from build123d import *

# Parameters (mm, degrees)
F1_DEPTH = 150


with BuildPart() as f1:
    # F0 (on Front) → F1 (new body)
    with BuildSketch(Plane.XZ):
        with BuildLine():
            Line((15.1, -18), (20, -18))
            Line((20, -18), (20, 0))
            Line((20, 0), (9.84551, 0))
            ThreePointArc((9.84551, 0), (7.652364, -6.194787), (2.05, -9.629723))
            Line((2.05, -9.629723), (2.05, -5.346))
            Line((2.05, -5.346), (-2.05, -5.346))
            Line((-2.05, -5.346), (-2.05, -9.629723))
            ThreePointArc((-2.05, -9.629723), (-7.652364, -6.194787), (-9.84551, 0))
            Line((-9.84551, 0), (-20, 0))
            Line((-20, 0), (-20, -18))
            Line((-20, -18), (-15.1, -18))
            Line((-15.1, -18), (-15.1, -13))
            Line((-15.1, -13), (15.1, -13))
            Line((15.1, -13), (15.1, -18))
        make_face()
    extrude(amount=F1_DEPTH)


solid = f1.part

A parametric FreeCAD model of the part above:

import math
import FreeCAD as App
import Part
import Sketcher
from FreeCAD import Vector
Q = App.Units.Quantity

doc = App.newDocument("Part")
body = doc.addObject("PartDesign::Body", "Body")

sketch1 = body.newObject("Sketcher::SketchObject", "Sketch")
sketch1.AttachmentSupport = (doc.getObject("XZ_Plane"), [""])
sketch1.MapMode = "FlatFace"
sketch1.addGeometry([
    Part.LineSegment(Vector(15.1, -18, 0), Vector(20, -18, 0)),
    Part.LineSegment(Vector(20, -18, 0), Vector(20, 0, 0)),
    Part.LineSegment(Vector(20, 0, 0), Vector(9.8, 0, 0)),
    Part.ArcOfCircle(Part.Circle(Vector(0, 0, 0), Vector(0, 0, 1), 9.8), math.radians(-78), math.radians(0)),
    Part.LineSegment(Vector(2, -9.6, 0), Vector(2, -5.3, 0)),
    Part.LineSegment(Vector(2, -5.3, 0), Vector(-2, -5.3, 0)),
    Part.LineSegment(Vector(-2, -5.3, 0), Vector(-2, -9.6, 0)),
    Part.ArcOfCircle(Part.Circle(Vector(0, 0, 0), Vector(0, 0, 1), 9.8), math.radians(-180), math.radians(-102)),
    Part.LineSegment(Vector(-9.8, 0, 0), Vector(-20, 0, 0)),
    Part.LineSegment(Vector(-20, 0, 0), Vector(-20, -18, 0)),
    Part.LineSegment(Vector(-20, -18, 0), Vector(-15.1, -18, 0)),
    Part.LineSegment(Vector(-15.1, -18, 0), Vector(-15.1, -13, 0)),
    Part.LineSegment(Vector(-15.1, -13, 0), Vector(15.1, -13, 0)),
    Part.LineSegment(Vector(15.1, -13, 0), Vector(15.1, -18, 0)),
], False)
sketch1.addConstraint([
    Sketcher.Constraint("Coincident", 0, 2, 1, 1),
    Sketcher.Constraint("Coincident", 1, 2, 2, 1),
    Sketcher.Constraint("Coincident", 2, 2, 3, 2),
    Sketcher.Constraint("Coincident", 3, 1, 4, 1),
    Sketcher.Constraint("Coincident", 4, 2, 5, 1),
    Sketcher.Constraint("Coincident", 5, 2, 6, 1),
    Sketcher.Constraint("Coincident", 6, 2, 7, 2),
    Sketcher.Constraint("Coincident", 7, 1, 8, 1),
    Sketcher.Constraint("Coincident", 8, 2, 9, 1),
    Sketcher.Constraint("Coincident", 9, 2, 10, 1),
    Sketcher.Constraint("Coincident", 10, 2, 11, 1),
    Sketcher.Constraint("Coincident", 11, 2, 12, 1),
    Sketcher.Constraint("Coincident", 12, 2, 13, 1),
    Sketcher.Constraint("Coincident", 13, 2, 0, 1),
    Sketcher.Constraint("Horizontal", 0),
    Sketcher.Constraint("Vertical", 1),
    Sketcher.Constraint("Horizontal", 2),
    Sketcher.Constraint("Vertical", 4),
    Sketcher.Constraint("Horizontal", 5),
    Sketcher.Constraint("Vertical", 6),
    Sketcher.Constraint("Horizontal", 8),
    Sketcher.Constraint("Vertical", 9),
    Sketcher.Constraint("Horizontal", 10),
    Sketcher.Constraint("Vertical", 11),
    Sketcher.Constraint("Horizontal", 12),
    Sketcher.Constraint("Vertical", 13),
    Sketcher.Constraint("Coincident", 3, 3, -1, 1),
    Sketcher.Constraint("Coincident", 7, 3, -1, 1),
    Sketcher.Constraint("Equal", 3, 7),
    Sketcher.Constraint("Symmetric", 1, 2, 8, 2, -1, 1),
    Sketcher.Constraint("Symmetric", 10, 2, 13, 2, -2),
    Sketcher.Constraint("PointOnObject", 1, 2, -1),
    Sketcher.Constraint("Horizontal", 3, 1, 6, 2),
    Sketcher.Constraint("DistanceY", 1, 1, 1, 2, Q("18 mm")),
    Sketcher.Constraint("DistanceY", 11, 1, 11, 2, Q("5 mm")),
    Sketcher.Constraint("DistanceX", 0, 1, 0, 2, Q("4.9 mm")),
    Sketcher.Constraint("DistanceX", 5, 2, 5, 1, Q("4.1 mm")),
    Sketcher.Constraint("DistanceX", 12, 1, 12, 2, Q("30.2 mm")),
    Sketcher.Constraint("Radius", 3, Q("9.845511 mm")),
    Sketcher.Constraint("DistanceY", 4, 2, -1, 1, Q("5.346 mm")),
])
pad1 = body.newObject("PartDesign::Pad", "Pad")
pad1.Profile = sketch1
pad1.Length = 150

doc.recompute()
